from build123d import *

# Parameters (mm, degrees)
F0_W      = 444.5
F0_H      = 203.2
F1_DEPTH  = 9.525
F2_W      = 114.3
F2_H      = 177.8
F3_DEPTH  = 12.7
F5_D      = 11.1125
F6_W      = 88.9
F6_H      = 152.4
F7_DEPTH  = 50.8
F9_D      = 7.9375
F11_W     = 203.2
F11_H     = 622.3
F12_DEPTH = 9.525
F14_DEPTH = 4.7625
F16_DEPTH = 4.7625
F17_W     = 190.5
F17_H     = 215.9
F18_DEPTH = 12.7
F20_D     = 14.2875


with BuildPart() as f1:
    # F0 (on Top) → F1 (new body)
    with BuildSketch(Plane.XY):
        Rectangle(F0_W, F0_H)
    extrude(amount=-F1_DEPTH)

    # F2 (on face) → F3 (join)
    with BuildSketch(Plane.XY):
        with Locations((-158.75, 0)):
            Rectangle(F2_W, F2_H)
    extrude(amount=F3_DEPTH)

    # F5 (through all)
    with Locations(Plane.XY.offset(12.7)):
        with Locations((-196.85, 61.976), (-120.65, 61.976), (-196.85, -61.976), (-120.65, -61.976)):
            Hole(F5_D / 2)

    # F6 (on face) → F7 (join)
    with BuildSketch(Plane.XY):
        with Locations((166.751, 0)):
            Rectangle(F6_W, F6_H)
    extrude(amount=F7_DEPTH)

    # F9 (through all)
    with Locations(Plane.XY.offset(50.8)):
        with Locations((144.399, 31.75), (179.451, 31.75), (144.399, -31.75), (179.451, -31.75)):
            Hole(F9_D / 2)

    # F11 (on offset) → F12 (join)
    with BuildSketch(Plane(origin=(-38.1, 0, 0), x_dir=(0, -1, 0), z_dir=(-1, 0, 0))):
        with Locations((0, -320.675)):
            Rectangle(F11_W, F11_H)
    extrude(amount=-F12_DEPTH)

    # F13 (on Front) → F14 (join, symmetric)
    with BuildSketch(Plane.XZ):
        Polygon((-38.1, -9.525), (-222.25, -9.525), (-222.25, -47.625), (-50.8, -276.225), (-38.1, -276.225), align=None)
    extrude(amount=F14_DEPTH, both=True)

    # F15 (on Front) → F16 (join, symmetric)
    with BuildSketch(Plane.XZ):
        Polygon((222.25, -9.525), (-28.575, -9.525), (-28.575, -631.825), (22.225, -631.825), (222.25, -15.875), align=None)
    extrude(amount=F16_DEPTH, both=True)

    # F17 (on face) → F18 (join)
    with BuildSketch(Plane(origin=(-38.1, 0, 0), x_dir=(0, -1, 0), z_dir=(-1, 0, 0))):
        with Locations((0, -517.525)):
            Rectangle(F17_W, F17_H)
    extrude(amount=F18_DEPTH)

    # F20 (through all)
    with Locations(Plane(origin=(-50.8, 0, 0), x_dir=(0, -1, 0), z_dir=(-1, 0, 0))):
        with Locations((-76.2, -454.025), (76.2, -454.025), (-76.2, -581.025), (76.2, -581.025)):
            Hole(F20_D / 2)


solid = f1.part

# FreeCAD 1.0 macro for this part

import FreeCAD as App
import Part
import Sketcher
from FreeCAD import Vector
Q = App.Units.Quantity

doc = App.newDocument("Part")
body = doc.addObject("PartDesign::Body", "Body")

# Sketch on XY plane
sketch1 = doc.addObject("Sketcher::SketchObject", "Sketch")
body.addObject(sketch1)
sketch1.AttachmentSupport = (doc.XY_Plane, [""])
sketch1.MapMode = "FlatFace"
sketch1.addGeometry(Part.LineSegment(Vector(-222, 102, 0), Vector(-222, -102, 0)), False)
sketch1.addGeometry(Part.LineSegment(Vector(-222, -102, 0), Vector(222, -102, 0)), False)
sketch1.addGeometry(Part.LineSegment(Vector(222, -102, 0), Vector(222, 102, 0)), False)
sketch1.addGeometry(Part.LineSegment(Vector(222, 102, 0), Vector(-222, 102, 0)), False)
sketch1.addConstraint(Sketcher.Constraint("Coincident", 0, 2, 1, 1))
sketch1.addConstraint(Sketcher.Constraint("Coincident", 1, 2, 2, 1))
sketch1.addConstraint(Sketcher.Constraint("Coincident", 2, 2, 3, 1))
sketch1.addConstraint(Sketcher.Constraint("Coincident", 3, 2, 0, 1))
sketch1.addConstraint(Sketcher.Constraint("Vertical", 0))
sketch1.addConstraint(Sketcher.Constraint("Horizontal", 1))
sketch1.addConstraint(Sketcher.Constraint("Vertical", 2))
sketch1.addConstraint(Sketcher.Constraint("Horizontal", 3))
sketch1.addConstraint(Sketcher.Constraint("Symmetric", 0, 2, 2, 2, -1, 1))
sketch1.addConstraint(Sketcher.Constraint("DistanceY", 0, 2, 0, 1, Q("8 in")))
sketch1.addConstraint(Sketcher.Constraint("DistanceX", 1, 1, 1, 2, Q("17.5 in")))
pad1 = doc.addObject("PartDesign::Pad", "Pad")
body.addObject(pad1)
pad1.Profile = sketch1
pad1.Length = Q("0.375 in")
pad1.Reversed = True

# Sketch on XY plane
sketch2 = doc.addObject("Sketcher::SketchObject", "Sketch001")
body.addObject(sketch2)
sketch2.AttachmentSupport = (doc.XY_Plane, [""])
sketch2.MapMode = "FlatFace"
sketch2.addGeometry(Part.LineSegment(Vector(-216, 89, 0), Vector(-216, -89, 0)), False)
sketch2.addGeometry(Part.LineSegment(Vector(-216, -89, 0), Vector(-102, -89, 0)), False)
sketch2.addGeometry(Part.LineSegment(Vector(-102, -89, 0), Vector(-102, 89, 0)), False)
sketch2.addGeometry(Part.LineSegment(Vector(-102, 89, 0), Vector(-216, 89, 0)), False)
sketch2.addConstraint(Sketcher.Constraint("Coincident", 0, 2, 1, 1))
sketch2.addConstraint(Sketcher.Constraint("Coincident", 1, 2, 2, 1))
sketch2.addConstraint(Sketcher.Constraint("Coincident", 2, 2, 3, 1))
sketch2.addConstraint(Sketcher.Constraint("Coincident", 3, 2, 0, 1))
sketch2.addConstraint(Sketcher.Constraint("Vertical", 0))
sketch2.addConstraint(Sketcher.Constraint("Horizontal", 1))
sketch2.addConstraint(Sketcher.Constraint("Vertical", 2))
sketch2.addConstraint(Sketcher.Constraint("Horizontal", 3))
sketch2.addConstraint(Sketcher.Constraint("DistanceY", 0, 2, 0, 1, Q("7 in")))
sketch2.addConstraint(Sketcher.Constraint("DistanceX", 1, 1, 1, 2, Q("4.5 in")))
sketch2.addConstraint(Sketcher.Constraint("DistanceX", 1, 2, -1, 1, Q("4 in")))
sketch2.addConstraint(Sketcher.Constraint("DistanceY", 0, 2, -1, 1, Q("3.5 in")))
pad2 = doc.addObject("PartDesign::Pad", "Pad001")
body.addObject(pad2)
pad2.Profile = sketch2
pad2.Length = Q("0.5 in")

# Sketch on XY plane
sketch3 = doc.addObject("Sketcher::SketchObject", "Sketch002")
body.addObject(sketch3)
sketch3.AttachmentSupport = (doc.XY_Plane, [""])
sketch3.MapMode = "FlatFace"
sketch3.AttachmentOffset = App.Placement(Vector(0, 0, 0.5 * 25.4), App.Rotation())
sketch3.addGeometry(Part.Circle(Vector(-197, 62, 0), Vector(0, 0, 1), 6), False)
sketch3.addGeometry(Part.Circle(Vector(-121, 62, 0), Vector(0, 0, 1), 6), False)
sketch3.addGeometry(Part.Circle(Vector(-197, -62, 0), Vector(0, 0, 1), 6), False)
sketch3.addGeometry(Part.Circle(Vector(-121, -62, 0), Vector(0, 0, 1), 6), False)
sketch3.addConstraint(Sketcher.Constraint("Equal", 0, 1))
sketch3.addConstraint(Sketcher.Constraint("Equal", 1, 2))
sketch3.addConstraint(Sketcher.Constraint("Equal", 2, 3))
sketch3.addConstraint(Sketcher.Constraint("Symmetric", 0, 3, 2, 3, -1))
sketch3.addConstraint(Sketcher.Constraint("Symmetric", 1, 3, 3, 3, -1))
sketch3.addConstraint(Sketcher.Constraint("Horizontal", 0, 3, 1, 3))
sketch3.addConstraint(Sketcher.Constraint("Diameter", 0, Q("0.4375 in")))
sketch3.addConstraint(Sketcher.Constraint("DistanceX", 0, 3, 1, 3, Q("3 in")))
sketch3.addConstraint(Sketcher.Constraint("DistanceX", 0, 3, -1, 1, Q("7.75 in")))
sketch3.addConstraint(Sketcher.Constraint("DistanceY", -1, 1, 0, 3, Q("2.44 in")))
doc.recompute()
hole = doc.addObject("PartDesign::Hole", "Hole")
body.addObject(hole)
hole.Profile = sketch3
hole.ThreadType = "None"
hole.Diameter = Q("0.4375 in")
hole.DepthType = "ThroughAll"

# Sketch on XY plane
sketch4 = doc.addObject("Sketcher::SketchObject", "Sketch003")
body.addObject(sketch4)
sketch4.AttachmentSupport = (doc.XY_Plane, [""])
sketch4.MapMode = "FlatFace"
sketch4.addGeometry(Part.LineSegment(Vector(122, 76, 0), Vector(122, -76, 0)), False)
sketch4.addGeometry(Part.LineSegment(Vector(122, -76, 0), Vector(211, -76, 0)), False)
sketch4.addGeometry(Part.LineSegment(Vector(211, -76, 0), Vector(211, 76, 0)), False)
sketch4.addGeometry(Part.LineSegment(Vector(211, 76, 0), Vector(122, 76, 0)), False)
sketch4.addConstraint(Sketcher.Constraint("Coincident", 0, 2, 1, 1))
sketch4.addConstraint(Sketcher.Constraint("Coincident", 1, 2, 2, 1))
sketch4.addConstraint(Sketcher.Constraint("Coincident", 2, 2, 3, 1))
sketch4.addConstraint(Sketcher.Constraint("Coincident", 3, 2, 0, 1))
sketch4.addConstraint(Sketcher.Constraint("Vertical", 0))
sketch4.addConstraint(Sketcher.Constraint("Horizontal", 1))
sketch4.addConstraint(Sketcher.Constraint("Vertical", 2))
sketch4.addConstraint(Sketcher.Constraint("Horizontal", 3))
sketch4.addConstraint(Sketcher.Constraint("DistanceY", 0, 2, 0, 1, Q("6 in")))
sketch4.addConstraint(Sketcher.Constraint("DistanceX", 1, 1, 1, 2, Q("3.5 in")))
sketch4.addConstraint(Sketcher.Constraint("DistanceY", 0, 2, -1, 1, Q("3 in")))
sketch4.addConstraint(Sketcher.Constraint("DistanceX", -1, 1, 0, 2, Q("4.815 in")))
pad3 = doc.addObject("PartDesign::Pad", "Pad002")
body.addObject(pad3)
pad3.Profile = sketch4
pad3.Length = Q("2 in")

# Sketch on XY plane
sketch5 = doc.addObject("Sketcher::SketchObject", "Sketch004")
body.addObject(sketch5)
sketch5.AttachmentSupport = (doc.XY_Plane, [""])
sketch5.MapMode = "FlatFace"
sketch5.AttachmentOffset = App.Placement(Vector(0, 0, 2 * 25.4), App.Rotation())
sketch5.addGeometry(Part.Circle(Vector(144.4, 31.8, 0), Vector(0, 0, 1), 4), False)
sketch5.addGeometry(Part.Circle(Vector(179.5, 31.8, 0), Vector(0, 0, 1), 4), False)
sketch5.addGeometry(Part.Circle(Vector(144.4, -31.8, 0), Vector(0, 0, 1), 4), False)
sketch5.addGeometry(Part.Circle(Vector(179.5, -31.8, 0), Vector(0, 0, 1), 4), False)
sketch5.addConstraint(Sketcher.Constraint("Equal", 0, 1))
sketch5.addConstraint(Sketcher.Constraint("Equal", 1, 2))
sketch5.addConstraint(Sketcher.Constraint("Equal", 2, 3))
sketch5.addConstraint(Sketcher.Constraint("Symmetric", 0, 3, 2, 3, -1))
sketch5.addConstraint(Sketcher.Constraint("Symmetric", 1, 3, 3, 3, -1))
sketch5.addConstraint(Sketcher.Constraint("Horizontal", 0, 3, 1, 3))
sketch5.addConstraint(Sketcher.Constraint("Diameter", 0, Q("0.3125 in")))
sketch5.addConstraint(Sketcher.Constraint("DistanceY", 2, 3, 0, 3, Q("2.5 in")))
sketch5.addConstraint(Sketcher.Constraint("DistanceX", 0, 3, 1, 3, Q("1.38 in")))
sketch5.addConstraint(Sketcher.Constraint("DistanceX", -1, 1, 0, 3, Q("5.685 in")))
doc.recompute()
hole2 = doc.addObject("PartDesign::Hole", "Hole001")
body.addObject(hole2)
hole2.Profile = sketch5
hole2.ThreadType = "None"
hole2.Diameter = Q("0.3125 in")
hole2.DepthType = "ThroughAll"

# Sketch on YZ plane
sketch6 = doc.addObject("Sketcher::SketchObject", "Sketch005")
body.addObject(sketch6)
sketch6.AttachmentSupport = (doc.YZ_Plane, [""])
sketch6.MapMode = "FlatFace"
sketch6.AttachmentOffset = App.Placement(Vector(0, 0, -1.5 * 25.4), App.Rotation())
sketch6.addGeometry(Part.LineSegment(Vector(102, -10, 0), Vector(102, -632, 0)), False)
sketch6.addGeometry(Part.LineSegment(Vector(102, -632, 0), Vector(-102, -632, 0)), False)
sketch6.addGeometry(Part.LineSegment(Vector(-102, -632, 0), Vector(-102, -10, 0)), False)
sketch6.addGeometry(Part.LineSegment(Vector(-102, -10, 0), Vector(102, -10, 0)), False)
sketch6.addConstraint(Sketcher.Constraint("Coincident", 0, 2, 1, 1))
sketch6.addConstraint(Sketcher.Constraint("Coincident", 1, 2, 2, 1))
sketch6.addConstraint(Sketcher.Constraint("Coincident", 2, 2, 3, 1))
sketch6.addConstraint(Sketcher.Constraint("Coincident", 3, 2, 0, 1))
sketch6.addConstraint(Sketcher.Constraint("Vertical", 0))
sketch6.addConstraint(Sketcher.Constraint("Horizontal", 1))
sketch6.addConstraint(Sketcher.Constraint("Vertical", 2))
sketch6.addConstraint(Sketcher.Constraint("Horizontal", 3))
sketch6.addConstraint(Sketcher.Constraint("DistanceX", 1, 2, 1, 1, Q("8 in")))
sketch6.addConstraint(Sketcher.Constraint("DistanceY", 0, 2, 0, 1, Q("24.5 in")))
sketch6.addConstraint(Sketcher.Constraint("DistanceX", -1, 1, 0, 2, Q("4 in")))
sketch6.addConstraint(Sketcher.Constraint("DistanceY", 0, 2, -1, 1, Q("24.875 in")))
pad4 = doc.addObject("PartDesign::Pad", "Pad003")
body.addObject(pad4)
pad4.Profile = sketch6
pad4.Length = Q("0.375 in")

# Sketch on XZ plane
sketch7 = doc.addObject("Sketcher::SketchObject", "Sketch006")
body.addObject(sketch7)
sketch7.AttachmentSupport = (doc.XZ_Plane, [""])
sketch7.MapMode = "FlatFace"
sketch7.addGeometry(Part.LineSegment(Vector(-38, -10, 0), Vector(-222, -10, 0)), False)
sketch7.addGeometry(Part.LineSegment(Vector(-222, -10, 0), Vector(-222, -48, 0)), False)
sketch7.addGeometry(Part.LineSegment(Vector(-222, -48, 0), Vector(-51, -276, 0)), False)
sketch7.addGeometry(Part.LineSegment(Vector(-51, -276, 0), Vector(-38, -276, 0)), False)
sketch7.addGeometry(Part.LineSegment(Vector(-38, -276, 0), Vector(-38, -10, 0)), False)
sketch7.addConstraint(Sketcher.Constraint("Coincident", 0, 2, 1, 1))
sketch7.addConstraint(Sketcher.Constraint("Coincident", 1, 2, 2, 1))
sketch7.addConstraint(Sketcher.Constraint("Coincident", 2, 2, 3, 1))
sketch7.addConstraint(Sketcher.Constraint("Coincident", 3, 2, 4, 1))
sketch7.addConstraint(Sketcher.Constraint("Coincident", 4, 2, 0, 1))
sketch7.addConstraint(Sketcher.Constraint("Horizontal", 0))
sketch7.addConstraint(Sketcher.Constraint("Vertical", 1))
sketch7.addConstraint(Sketcher.Constraint("Horizontal", 3))
sketch7.addConstraint(Sketcher.Constraint("Vertical", 4))
sketch7.addConstraint(Sketcher.Constraint("DistanceX", 3, 1, 3, 2, Q("0.5 in")))
sketch7.addConstraint(Sketcher.Constraint("DistanceY", 1, 2, 1, 1, Q("1.5 in")))
sketch7.addConstraint(Sketcher.Constraint("DistanceY", 4, 1, 4, 2, Q("10.5 in")))
sketch7.addConstraint(Sketcher.Constraint("DistanceX", 2, 2, -1, 1, Q("2 in")))
sketch7.addConstraint(Sketcher.Constraint("DistanceX", 0, 2, 0, 1, Q("7.25 in")))
sketch7.addConstraint(Sketcher.Constraint("DistanceY", 0, 2, -1, 1, Q("0.375 in")))
pad5 = doc.addObject("PartDesign::Pad", "Pad004")
body.addObject(pad5)
pad5.Profile = sketch7
pad5.Length = Q("0.375 in")
pad5.Midplane = True

# Sketch on XZ plane
sketch8 = doc.addObject("Sketcher::SketchObject", "Sketch007")
body.addObject(sketch8)
sketch8.AttachmentSupport = (doc.XZ_Plane, [""])
sketch8.MapMode = "FlatFace"
sketch8.addGeometry(Part.LineSegment(Vector(222, -10, 0), Vector(-29, -10, 0)), False)
sketch8.addGeometry(Part.LineSegment(Vector(-29, -10, 0), Vector(-29, -632, 0)), False)
sketch8.addGeometry(Part.LineSegment(Vector(-29, -632, 0), Vector(22, -632, 0)), False)
sketch8.addGeometry(Part.LineSegment(Vector(22, -632, 0), Vector(222, -16, 0)), False)
sketch8.addGeometry(Part.LineSegment(Vector(222, -16, 0), Vector(222, -10, 0)), False)
sketch8.addConstraint(Sketcher.Constraint("Coincident", 0, 2, 1, 1))
sketch8.addConstraint(Sketcher.Constraint("Coincident", 1, 2, 2, 1))
sketch8.addConstraint(Sketcher.Constraint("Coincident", 2, 2, 3, 1))
sketch8.addConstraint(Sketcher.Constraint("Coincident", 3, 2, 4, 1))
sketch8.addConstraint(Sketcher.Constraint("Coincident", 4, 2, 0, 1))
sketch8.addConstraint(Sketcher.Constraint("Horizontal", 0))
sketch8.addConstraint(Sketcher.Constraint("Vertical", 1))
sketch8.addConstraint(Sketcher.Constraint("Horizontal", 2))
sketch8.addConstraint(Sketcher.Constraint("Vertical", 4))
sketch8.addConstraint(Sketcher.Constraint("DistanceX", 2, 1, 2, 2, Q("2 in")))
sketch8.addConstraint(Sketcher.Constraint("DistanceY", 1, 2, 1, 1, Q("24.5 in")))
sketch8.addConstraint(Sketcher.Constraint("DistanceY", 4, 1, 4, 2, Q("0.25 in")))
sketch8.addConstraint(Sketcher.Constraint("DistanceX", 0, 2, 0, 1, Q("9.875 in")))
sketch8.addConstraint(Sketcher.Constraint("DistanceX", -1, 1, 3, 2, Q("8.75 in")))
sketch8.addConstraint(Sketcher.Constraint("DistanceY", 0, 2, -1, 1, Q("0.375 in")))
pad6 = doc.addObject("PartDesign::Pad", "Pad005")
body.addObject(pad6)
pad6.Profile = sketch8
pad6.Length = Q("0.375 in")
pad6.Midplane = True

# Sketch on YZ plane
sketch9 = doc.addObject("Sketcher::SketchObject", "Sketch008")
body.addObject(sketch9)
sketch9.AttachmentSupport = (doc.YZ_Plane, [""])
sketch9.MapMode = "FlatFace"
sketch9.AttachmentOffset = App.Placement(Vector(0, 0, -1.5 * 25.4), App.Rotation())
sketch9.addGeometry(Part.LineSegment(Vector(95, -410, 0), Vector(95, -625, 0)), False)
sketch9.addGeometry(Part.LineSegment(Vector(95, -625, 0), Vector(-95, -625, 0)), False)
sketch9.addGeometry(Part.LineSegment(Vector(-95, -625, 0), Vector(-95, -410, 0)), False)
sketch9.addGeometry(Part.LineSegment(Vector(-95, -410, 0), Vector(95, -410, 0)), False)
sketch9.addConstraint(Sketcher.Constraint("Coincident", 0, 2, 1, 1))
sketch9.addConstraint(Sketcher.Constraint("Coincident", 1, 2, 2, 1))
sketch9.addConstraint(Sketcher.Constraint("Coincident", 2, 2, 3, 1))
sketch9.addConstraint(Sketcher.Constraint("Coincident", 3, 2, 0, 1))
sketch9.addConstraint(Sketcher.Constraint("Vertical", 0))
sketch9.addConstraint(Sketcher.Constraint("Horizontal", 1))
sketch9.addConstraint(Sketcher.Constraint("Vertical", 2))
sketch9.addConstraint(Sketcher.Constraint("Horizontal", 3))
sketch9.addConstraint(Sketcher.Constraint("DistanceX", 1, 2, 1, 1, Q("7.5 in")))
sketch9.addConstraint(Sketcher.Constraint("DistanceY", 0, 2, 0, 1, Q("8.5 in")))
sketch9.addConstraint(Sketcher.Constraint("DistanceX", -1, 1, 0, 2, Q("3.75 in")))
sketch9.addConstraint(Sketcher.Constraint("DistanceY", 0, 2, -1, 1, Q("24.625 in")))
pad7 = doc.addObject("PartDesign::Pad", "Pad006")
body.addObject(pad7)
pad7.Profile = sketch9
pad7.Length = Q("0.5 in")
pad7.Reversed = True

# Sketch on YZ plane
sketch10 = doc.addObject("Sketcher::SketchObject", "Sketch009")
body.addObject(sketch10)
sketch10.AttachmentSupport = (doc.YZ_Plane, [""])
sketch10.MapMode = "FlatFace"
sketch10.AttachmentOffset = App.Placement(Vector(0, 0, -2 * 25.4), App.Rotation())
sketch10.addGeometry(Part.Circle(Vector(76, -454, 0), Vector(0, 0, 1), 7), False)
sketch10.addGeometry(Part.Circle(Vector(-76, -454, 0), Vector(0, 0, 1), 7), False)
sketch10.addGeometry(Part.Circle(Vector(76, -581, 0), Vector(0, 0, 1), 7), False)
sketch10.addGeometry(Part.Circle(Vector(-76, -581, 0), Vector(0, 0, 1), 7), False)
sketch10.addConstraint(Sketcher.Constraint("Equal", 0, 1))
sketch10.addConstraint(Sketcher.Constraint("Equal", 1, 2))
sketch10.addConstraint(Sketcher.Constraint("Equal", 2, 3))
sketch10.addConstraint(Sketcher.Constraint("Symmetric", 0, 3, 1, 3, -2))
sketch10.addConstraint(Sketcher.Constraint("Symmetric", 2, 3, 3, 3, -2))
sketch10.addConstraint(Sketcher.Constraint("Vertical", 0, 3, 2, 3))
sketch10.addConstraint(Sketcher.Constraint("Diameter", 0, Q("0.5625 in")))
sketch10.addConstraint(Sketcher.Constraint("DistanceX", -1, 1, 0, 3, Q("3 in")))
sketch10.addConstraint(Sketcher.Constraint("DistanceY", 2, 3, 0, 3, Q("5 in")))
sketch10.addConstraint(Sketcher.Constraint("DistanceY", 0, 3, -1, 1, Q("17.875 in")))
doc.recompute()
hole3 = doc.addObject("PartDesign::Hole", "Hole002")
body.addObject(hole3)
hole3.Profile = sketch10
hole3.ThreadType = "None"
hole3.Diameter = Q("0.5625 in")
hole3.DepthType = "ThroughAll"
hole3.Reversed = True

doc.recompute()
